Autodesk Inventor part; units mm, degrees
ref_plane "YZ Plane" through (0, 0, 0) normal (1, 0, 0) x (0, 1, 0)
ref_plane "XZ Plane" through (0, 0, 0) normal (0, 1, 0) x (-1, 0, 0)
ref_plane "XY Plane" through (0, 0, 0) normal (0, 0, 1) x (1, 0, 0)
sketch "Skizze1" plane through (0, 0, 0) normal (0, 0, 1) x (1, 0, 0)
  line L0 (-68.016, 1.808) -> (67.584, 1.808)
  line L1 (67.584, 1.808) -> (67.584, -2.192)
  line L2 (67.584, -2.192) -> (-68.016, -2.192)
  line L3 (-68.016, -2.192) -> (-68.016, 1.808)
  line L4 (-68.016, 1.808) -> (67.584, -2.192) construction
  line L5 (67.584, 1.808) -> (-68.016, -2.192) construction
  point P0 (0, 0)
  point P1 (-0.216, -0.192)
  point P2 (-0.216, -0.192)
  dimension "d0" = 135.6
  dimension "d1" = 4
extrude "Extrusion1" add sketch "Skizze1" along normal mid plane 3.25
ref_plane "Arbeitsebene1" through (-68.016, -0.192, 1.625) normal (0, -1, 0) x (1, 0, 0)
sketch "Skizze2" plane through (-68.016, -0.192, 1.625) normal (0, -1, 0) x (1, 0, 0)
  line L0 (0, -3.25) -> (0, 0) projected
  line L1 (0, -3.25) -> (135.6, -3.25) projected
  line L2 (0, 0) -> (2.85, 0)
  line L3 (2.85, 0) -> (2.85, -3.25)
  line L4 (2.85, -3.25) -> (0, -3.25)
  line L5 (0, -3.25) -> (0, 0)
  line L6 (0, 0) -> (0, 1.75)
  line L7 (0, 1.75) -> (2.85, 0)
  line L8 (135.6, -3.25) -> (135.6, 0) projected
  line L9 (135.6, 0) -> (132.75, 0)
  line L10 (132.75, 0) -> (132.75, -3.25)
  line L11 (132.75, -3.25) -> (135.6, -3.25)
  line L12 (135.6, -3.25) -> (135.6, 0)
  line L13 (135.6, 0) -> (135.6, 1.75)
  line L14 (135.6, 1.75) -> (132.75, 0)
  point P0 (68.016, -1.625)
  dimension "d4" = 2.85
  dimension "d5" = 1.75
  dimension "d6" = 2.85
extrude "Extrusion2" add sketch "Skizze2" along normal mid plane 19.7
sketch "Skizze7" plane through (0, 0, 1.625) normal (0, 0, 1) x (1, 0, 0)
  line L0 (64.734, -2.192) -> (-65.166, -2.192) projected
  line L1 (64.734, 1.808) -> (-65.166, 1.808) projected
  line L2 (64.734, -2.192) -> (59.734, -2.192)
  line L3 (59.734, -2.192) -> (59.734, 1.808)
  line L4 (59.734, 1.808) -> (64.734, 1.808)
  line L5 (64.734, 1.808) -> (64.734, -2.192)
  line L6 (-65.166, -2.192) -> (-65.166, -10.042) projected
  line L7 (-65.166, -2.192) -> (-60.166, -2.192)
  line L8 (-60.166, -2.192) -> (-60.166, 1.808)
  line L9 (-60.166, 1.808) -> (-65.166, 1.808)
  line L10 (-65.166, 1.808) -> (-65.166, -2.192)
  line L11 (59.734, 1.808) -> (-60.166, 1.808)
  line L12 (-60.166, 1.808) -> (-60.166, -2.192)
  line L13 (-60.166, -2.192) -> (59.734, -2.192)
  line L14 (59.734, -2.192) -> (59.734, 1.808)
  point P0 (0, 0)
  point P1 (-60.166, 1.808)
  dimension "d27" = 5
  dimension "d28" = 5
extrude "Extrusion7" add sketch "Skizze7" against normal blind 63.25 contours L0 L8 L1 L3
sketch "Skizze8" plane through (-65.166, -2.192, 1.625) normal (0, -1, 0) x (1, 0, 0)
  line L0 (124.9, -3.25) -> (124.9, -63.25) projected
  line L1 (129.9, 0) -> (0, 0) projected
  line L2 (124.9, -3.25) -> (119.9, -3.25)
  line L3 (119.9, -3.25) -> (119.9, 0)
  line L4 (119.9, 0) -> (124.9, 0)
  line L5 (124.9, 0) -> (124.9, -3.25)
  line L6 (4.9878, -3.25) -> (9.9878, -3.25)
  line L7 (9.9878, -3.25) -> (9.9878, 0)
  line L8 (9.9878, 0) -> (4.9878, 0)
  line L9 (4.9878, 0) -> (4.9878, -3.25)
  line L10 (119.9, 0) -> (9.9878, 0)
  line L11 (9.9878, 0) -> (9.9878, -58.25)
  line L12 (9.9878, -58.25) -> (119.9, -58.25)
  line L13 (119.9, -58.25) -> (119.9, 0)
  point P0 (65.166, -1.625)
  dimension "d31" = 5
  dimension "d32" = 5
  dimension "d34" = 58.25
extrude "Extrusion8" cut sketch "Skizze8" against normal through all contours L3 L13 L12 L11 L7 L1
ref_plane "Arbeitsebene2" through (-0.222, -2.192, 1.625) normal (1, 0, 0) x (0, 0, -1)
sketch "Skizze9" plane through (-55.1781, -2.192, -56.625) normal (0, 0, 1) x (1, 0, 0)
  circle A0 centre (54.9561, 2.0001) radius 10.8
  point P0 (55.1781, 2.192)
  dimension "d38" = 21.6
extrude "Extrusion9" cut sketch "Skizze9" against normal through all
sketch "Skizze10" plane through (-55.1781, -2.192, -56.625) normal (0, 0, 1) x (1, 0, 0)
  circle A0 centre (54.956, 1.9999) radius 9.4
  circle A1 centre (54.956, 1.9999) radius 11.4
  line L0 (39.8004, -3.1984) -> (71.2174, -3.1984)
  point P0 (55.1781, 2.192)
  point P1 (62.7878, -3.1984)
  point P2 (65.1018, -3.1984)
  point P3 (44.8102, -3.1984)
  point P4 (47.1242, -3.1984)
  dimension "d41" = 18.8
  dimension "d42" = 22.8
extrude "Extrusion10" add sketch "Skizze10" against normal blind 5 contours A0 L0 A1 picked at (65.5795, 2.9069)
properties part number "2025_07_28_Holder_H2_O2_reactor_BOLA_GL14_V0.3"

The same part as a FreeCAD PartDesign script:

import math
import FreeCAD as App
import Part
import Sketcher

V = App.Vector
Q = App.Units.Quantity

doc = App.newDocument("Part")
body = doc.addObject("PartDesign::Body", "Body")
body.AllowCompound = True

# Sketch on XY plane
sketch1 = body.newObject("Sketcher::SketchObject", "Sketch")
sketch1.AttachmentSupport = (doc.getObject("XY_Plane"), [""])
sketch1.MapMode = "FlatFace"
sketch1.addGeometry([
    Part.LineSegment(V(67.6, 1.8, 0), V(-68, 1.8, 0)),
    Part.LineSegment(V(-68, 1.8, 0), V(-68, -2.2, 0)),
    Part.LineSegment(V(-68, -2.2, 0), V(67.6, -2.2, 0)),
    Part.LineSegment(V(67.6, -2.2, 0), V(67.6, 1.8, 0)),
], False)
sketch1.addConstraint([
    Sketcher.Constraint("Coincident", 0, 2, 1, 1),
    Sketcher.Constraint("Coincident", 1, 2, 2, 1),
    Sketcher.Constraint("Coincident", 2, 2, 3, 1),
    Sketcher.Constraint("Coincident", 3, 2, 0, 1),
    Sketcher.Constraint("Horizontal", 0),
    Sketcher.Constraint("Vertical", 1),
    Sketcher.Constraint("Horizontal", 2),
    Sketcher.Constraint("Vertical", 3),
    Sketcher.Constraint("DistanceY", 1, 2, 1, 1, Q("4 mm")),
    Sketcher.Constraint("DistanceX", 0, 2, 0, 1, Q("135.6 mm")),
    Sketcher.Constraint("DistanceX", 0, 2, -1, 1, Q("68.016 mm")),
    Sketcher.Constraint("DistanceY", -1, 1, 0, 2, Q("1.808 mm")),
])
pad1 = body.newObject("PartDesign::Pad", "Pad")
pad1.Profile = sketch1
pad1.Length = 3.25
pad1.Midplane = True

# Sketch on XZ plane
sketch2 = body.newObject("Sketcher::SketchObject", "Sketch001")
sketch2.AttachmentSupport = (doc.getObject("XZ_Plane"), [""])
sketch2.MapMode = "FlatFace"
sketch2.AttachmentOffset = App.Placement(V(0, 0, 0.192), App.Rotation())
sketch2.addGeometry([
    Part.LineSegment(V(64.7, 1.6, 0), V(64.7, -1.6, 0)),  # 0
    Part.LineSegment(V(64.7, -1.6, 0), V(67.6, -1.6, 0)),  # 1
    Part.LineSegment(V(67.6, -1.6, 0), V(67.6, 3.4, 0)),  # 2
    Part.LineSegment(V(67.6, 3.4, 0), V(64.7, 1.6, 0)),  # 3
    Part.LineSegment(V(-68, -1.6, 0), V(-65.2, -1.6, 0)),  # 4
    Part.LineSegment(V(-65.2, -1.6, 0), V(-65.2, 1.6, 0)),  # 5
    Part.LineSegment(V(-65.2, 1.6, 0), V(-68, 3.4, 0)),  # 6
    Part.LineSegment(V(-68, 3.4, 0), V(-68, -1.6, 0)),  # 7
], False)
sketch2.addConstraint([
    Sketcher.Constraint("Coincident", 0, 2, 1, 1),
    Sketcher.Constraint("Coincident", 1, 2, 2, 1),
    Sketcher.Constraint("Coincident", 2, 2, 3, 1),
    Sketcher.Constraint("Coincident", 3, 2, 0, 1),
    Sketcher.Constraint("Coincident", 4, 2, 5, 1),
    Sketcher.Constraint("Coincident", 5, 2, 6, 1),
    Sketcher.Constraint("Coincident", 6, 2, 7, 1),
    Sketcher.Constraint("Coincident", 7, 2, 4, 1),
    Sketcher.Constraint("Vertical", 0),
    Sketcher.Constraint("Horizontal", 1),
    Sketcher.Constraint("Vertical", 2),
    Sketcher.Constraint("Horizontal", 4),
    Sketcher.Constraint("Vertical", 5),
    Sketcher.Constraint("Vertical", 7),
    Sketcher.Constraint("Horizontal", 1, 2, 4, 2),
    Sketcher.Constraint("Horizontal", 3, 2, 5, 2),
    Sketcher.Constraint("Horizontal", 2, 2, 6, 2),
    Sketcher.Constraint("Equal", 1, 4),
    Sketcher.Constraint("DistanceX", 1, 1, 1, 2, Q("2.85 mm")),
    Sketcher.Constraint("DistanceY", 2, 1, 2, 2, Q("5 mm")),
    Sketcher.Constraint("DistanceY", 3, 2, 2, 2, Q("1.75 mm")),
    Sketcher.Constraint("DistanceX", 4, 2, 0, 2, Q("129.9 mm")),
    Sketcher.Constraint("DistanceX", -1, 1, 0, 2, Q("64.734 mm")),
    Sketcher.Constraint("DistanceY", 0, 2, -1, 1, Q("1.625 mm")),
])
pad2 = body.newObject("PartDesign::Pad", "Pad001")
pad2.Profile = sketch2
pad2.Length = 19.7
pad2.Midplane = True

# Sketch on XY plane
sketch3 = body.newObject("Sketcher::SketchObject", "Sketch002")
sketch3.AttachmentSupport = (doc.getObject("XY_Plane"), [""])
sketch3.MapMode = "FlatFace"
sketch3.AttachmentOffset = App.Placement(V(0, 0, 1.625), App.Rotation())
sketch3.addGeometry([
    Part.LineSegment(V(-60.2, -2.2, 0), V(59.7, -2.2, 0)),
    Part.LineSegment(V(59.7, -2.2, 0), V(59.7, 1.8, 0)),
    Part.LineSegment(V(59.7, 1.8, 0), V(-60.2, 1.8, 0)),
    Part.LineSegment(V(-60.2, 1.8, 0), V(-60.2, -2.2, 0)),
], False)
sketch3.addConstraint([
    Sketcher.Constraint("Coincident", 0, 2, 1, 1),
    Sketcher.Constraint("Coincident", 1, 2, 2, 1),
    Sketcher.Constraint("Coincident", 2, 2, 3, 1),
    Sketcher.Constraint("Coincident", 3, 2, 0, 1),
    Sketcher.Constraint("Horizontal", 0),
    Sketcher.Constraint("Vertical", 1),
    Sketcher.Constraint("Horizontal", 2),
    Sketcher.Constraint("Vertical", 3),
    Sketcher.Constraint("DistanceY", 1, 1, 1, 2, Q("4 mm")),
    Sketcher.Constraint("DistanceX", 0, 1, 0, 2, Q("119.9 mm")),
    Sketcher.Constraint("DistanceX", -1, 1, 0, 2, Q("59.734 mm")),
    Sketcher.Constraint("DistanceY", 0, 2, -1, 1, Q("2.192 mm")),
])
pad3 = body.newObject("PartDesign::Pad", "Pad002")
pad3.Profile = sketch3
pad3.Length = 63.25
pad3.Reversed = True

# Sketch on XZ plane
sketch4 = body.newObject("Sketcher::SketchObject", "Sketch003")
sketch4.AttachmentSupport = (doc.getObject("XZ_Plane"), [""])
sketch4.MapMode = "FlatFace"
sketch4.AttachmentOffset = App.Placement(V(0, 0, 2.192), App.Rotation())
sketch4.addGeometry([
    Part.LineSegment(V(55, -57, 0), V(55, 2, 0)),
    Part.LineSegment(V(55, 2, 0), V(-55, 2, 0)),
    Part.LineSegment(V(-55, 2, 0), V(-55, -57, 0)),
    Part.LineSegment(V(-55, -57, 0), V(55, -57, 0)),
], False)
sketch4.addConstraint([
    Sketcher.Constraint("Coincident", 0, 2, 1, 1),
    Sketcher.Constraint("Coincident", 1, 2, 2, 1),
    Sketcher.Constraint("Coincident", 2, 2, 3, 1),
    Sketcher.Constraint("Coincident", 3, 2, 0, 1),
    Sketcher.Constraint("Vertical", 0),
    Sketcher.Constraint("Horizontal", 1),
    Sketcher.Constraint("Vertical", 2),
    Sketcher.Constraint("Horizontal", 3),
    Sketcher.Constraint("DistanceY", 0, 1, 0, 2, Q("58.25 mm")),
    Sketcher.Constraint("DistanceX", 1, 2, 1, 1, Q("109.9122 mm")),
    Sketcher.Constraint("DistanceX", -1, 1, 0, 2, Q("54.734 mm")),
    Sketcher.Constraint("DistanceY", -1, 1, 0, 2, Q("1.625 mm")),
])
pocket1 = body.newObject("PartDesign::Pocket", "Pocket")
pocket1.Profile = sketch4
pocket1.Type = "ThroughAll"

# Sketch on XY plane
sketch5 = body.newObject("Sketcher::SketchObject", "Sketch004")
sketch5.AttachmentSupport = (doc.getObject("XY_Plane"), [""])
sketch5.MapMode = "FlatFace"
sketch5.AttachmentOffset = App.Placement(V(0, 0, -56.625), App.Rotation())
sketch5.addGeometry(Part.Circle(V(0, 0, 0), V(0, 0, 1), 11), False)
sketch5.addConstraint([
    Sketcher.Constraint("Diameter", 0, Q("21.6 mm")),
    Sketcher.Constraint("DistanceX", 0, 3, -1, 1, Q("0.222 mm")),
    Sketcher.Constraint("DistanceY", 0, 3, -1, 1, Q("0.192 mm")),
])
pocket2 = body.newObject("PartDesign::Pocket", "Pocket001")
pocket2.Profile = sketch5
pocket2.Type = "ThroughAll"

# Sketch on XY plane
sketch6 = body.newObject("Sketcher::SketchObject", "Sketch005")
sketch6.AttachmentSupport = (doc.getObject("XY_Plane"), [""])
sketch6.MapMode = "FlatFace"
sketch6.AttachmentOffset = App.Placement(V(0, 0, -56.625), App.Rotation())
sketch6.addGeometry([
    Part.ArcOfCircle(Part.Circle(V(-0.2, -0.2, 0), V(0, 0, 1), 9.4), math.radians(-34), math.radians(214)),
    Part.LineSegment(V(7.6, -5.4, 0), V(9.9, -5.4, 0)),
    Part.ArcOfCircle(Part.Circle(V(-0.2, -0.2, 0), V(0, 0, 1), 11.4), math.radians(-27), math.radians(207)),
    Part.LineSegment(V(-10.4, -5.4, 0), V(-8.1, -5.4, 0)),
], False)
sketch6.addConstraint([
    Sketcher.Constraint("Coincident", 0, 1, 1, 1),
    Sketcher.Constraint("Coincident", 1, 2, 2, 1),
    Sketcher.Constraint("Coincident", 2, 2, 3, 1),
    Sketcher.Constraint("Coincident", 3, 2, 0, 2),
    Sketcher.Constraint("Horizontal", 1),
    Sketcher.Constraint("Horizontal", 3),
    Sketcher.Constraint("Coincident", 2, 3, 0, 3),
    Sketcher.Constraint("Horizontal", 1, 2, 2, 2),
    Sketcher.Constraint("Radius", 0, Q("9.4 mm")),
    Sketcher.Constraint("Radius", 2, Q("11.4 mm")),
    Sketcher.Constraint("DistanceX", 1, 1, 1, 2, Q("2.314 mm")),
    Sketcher.Constraint("DistanceX", 0, 3, -1, 1, Q("0.222 mm")),
    Sketcher.Constraint("DistanceY", 0, 3, -1, 1, Q("0.192 mm")),
])
pad4 = body.newObject("PartDesign::Pad", "Pad003")
pad4.Profile = sketch6
pad4.Length = 5
pad4.Reversed = True

doc.recompute()
